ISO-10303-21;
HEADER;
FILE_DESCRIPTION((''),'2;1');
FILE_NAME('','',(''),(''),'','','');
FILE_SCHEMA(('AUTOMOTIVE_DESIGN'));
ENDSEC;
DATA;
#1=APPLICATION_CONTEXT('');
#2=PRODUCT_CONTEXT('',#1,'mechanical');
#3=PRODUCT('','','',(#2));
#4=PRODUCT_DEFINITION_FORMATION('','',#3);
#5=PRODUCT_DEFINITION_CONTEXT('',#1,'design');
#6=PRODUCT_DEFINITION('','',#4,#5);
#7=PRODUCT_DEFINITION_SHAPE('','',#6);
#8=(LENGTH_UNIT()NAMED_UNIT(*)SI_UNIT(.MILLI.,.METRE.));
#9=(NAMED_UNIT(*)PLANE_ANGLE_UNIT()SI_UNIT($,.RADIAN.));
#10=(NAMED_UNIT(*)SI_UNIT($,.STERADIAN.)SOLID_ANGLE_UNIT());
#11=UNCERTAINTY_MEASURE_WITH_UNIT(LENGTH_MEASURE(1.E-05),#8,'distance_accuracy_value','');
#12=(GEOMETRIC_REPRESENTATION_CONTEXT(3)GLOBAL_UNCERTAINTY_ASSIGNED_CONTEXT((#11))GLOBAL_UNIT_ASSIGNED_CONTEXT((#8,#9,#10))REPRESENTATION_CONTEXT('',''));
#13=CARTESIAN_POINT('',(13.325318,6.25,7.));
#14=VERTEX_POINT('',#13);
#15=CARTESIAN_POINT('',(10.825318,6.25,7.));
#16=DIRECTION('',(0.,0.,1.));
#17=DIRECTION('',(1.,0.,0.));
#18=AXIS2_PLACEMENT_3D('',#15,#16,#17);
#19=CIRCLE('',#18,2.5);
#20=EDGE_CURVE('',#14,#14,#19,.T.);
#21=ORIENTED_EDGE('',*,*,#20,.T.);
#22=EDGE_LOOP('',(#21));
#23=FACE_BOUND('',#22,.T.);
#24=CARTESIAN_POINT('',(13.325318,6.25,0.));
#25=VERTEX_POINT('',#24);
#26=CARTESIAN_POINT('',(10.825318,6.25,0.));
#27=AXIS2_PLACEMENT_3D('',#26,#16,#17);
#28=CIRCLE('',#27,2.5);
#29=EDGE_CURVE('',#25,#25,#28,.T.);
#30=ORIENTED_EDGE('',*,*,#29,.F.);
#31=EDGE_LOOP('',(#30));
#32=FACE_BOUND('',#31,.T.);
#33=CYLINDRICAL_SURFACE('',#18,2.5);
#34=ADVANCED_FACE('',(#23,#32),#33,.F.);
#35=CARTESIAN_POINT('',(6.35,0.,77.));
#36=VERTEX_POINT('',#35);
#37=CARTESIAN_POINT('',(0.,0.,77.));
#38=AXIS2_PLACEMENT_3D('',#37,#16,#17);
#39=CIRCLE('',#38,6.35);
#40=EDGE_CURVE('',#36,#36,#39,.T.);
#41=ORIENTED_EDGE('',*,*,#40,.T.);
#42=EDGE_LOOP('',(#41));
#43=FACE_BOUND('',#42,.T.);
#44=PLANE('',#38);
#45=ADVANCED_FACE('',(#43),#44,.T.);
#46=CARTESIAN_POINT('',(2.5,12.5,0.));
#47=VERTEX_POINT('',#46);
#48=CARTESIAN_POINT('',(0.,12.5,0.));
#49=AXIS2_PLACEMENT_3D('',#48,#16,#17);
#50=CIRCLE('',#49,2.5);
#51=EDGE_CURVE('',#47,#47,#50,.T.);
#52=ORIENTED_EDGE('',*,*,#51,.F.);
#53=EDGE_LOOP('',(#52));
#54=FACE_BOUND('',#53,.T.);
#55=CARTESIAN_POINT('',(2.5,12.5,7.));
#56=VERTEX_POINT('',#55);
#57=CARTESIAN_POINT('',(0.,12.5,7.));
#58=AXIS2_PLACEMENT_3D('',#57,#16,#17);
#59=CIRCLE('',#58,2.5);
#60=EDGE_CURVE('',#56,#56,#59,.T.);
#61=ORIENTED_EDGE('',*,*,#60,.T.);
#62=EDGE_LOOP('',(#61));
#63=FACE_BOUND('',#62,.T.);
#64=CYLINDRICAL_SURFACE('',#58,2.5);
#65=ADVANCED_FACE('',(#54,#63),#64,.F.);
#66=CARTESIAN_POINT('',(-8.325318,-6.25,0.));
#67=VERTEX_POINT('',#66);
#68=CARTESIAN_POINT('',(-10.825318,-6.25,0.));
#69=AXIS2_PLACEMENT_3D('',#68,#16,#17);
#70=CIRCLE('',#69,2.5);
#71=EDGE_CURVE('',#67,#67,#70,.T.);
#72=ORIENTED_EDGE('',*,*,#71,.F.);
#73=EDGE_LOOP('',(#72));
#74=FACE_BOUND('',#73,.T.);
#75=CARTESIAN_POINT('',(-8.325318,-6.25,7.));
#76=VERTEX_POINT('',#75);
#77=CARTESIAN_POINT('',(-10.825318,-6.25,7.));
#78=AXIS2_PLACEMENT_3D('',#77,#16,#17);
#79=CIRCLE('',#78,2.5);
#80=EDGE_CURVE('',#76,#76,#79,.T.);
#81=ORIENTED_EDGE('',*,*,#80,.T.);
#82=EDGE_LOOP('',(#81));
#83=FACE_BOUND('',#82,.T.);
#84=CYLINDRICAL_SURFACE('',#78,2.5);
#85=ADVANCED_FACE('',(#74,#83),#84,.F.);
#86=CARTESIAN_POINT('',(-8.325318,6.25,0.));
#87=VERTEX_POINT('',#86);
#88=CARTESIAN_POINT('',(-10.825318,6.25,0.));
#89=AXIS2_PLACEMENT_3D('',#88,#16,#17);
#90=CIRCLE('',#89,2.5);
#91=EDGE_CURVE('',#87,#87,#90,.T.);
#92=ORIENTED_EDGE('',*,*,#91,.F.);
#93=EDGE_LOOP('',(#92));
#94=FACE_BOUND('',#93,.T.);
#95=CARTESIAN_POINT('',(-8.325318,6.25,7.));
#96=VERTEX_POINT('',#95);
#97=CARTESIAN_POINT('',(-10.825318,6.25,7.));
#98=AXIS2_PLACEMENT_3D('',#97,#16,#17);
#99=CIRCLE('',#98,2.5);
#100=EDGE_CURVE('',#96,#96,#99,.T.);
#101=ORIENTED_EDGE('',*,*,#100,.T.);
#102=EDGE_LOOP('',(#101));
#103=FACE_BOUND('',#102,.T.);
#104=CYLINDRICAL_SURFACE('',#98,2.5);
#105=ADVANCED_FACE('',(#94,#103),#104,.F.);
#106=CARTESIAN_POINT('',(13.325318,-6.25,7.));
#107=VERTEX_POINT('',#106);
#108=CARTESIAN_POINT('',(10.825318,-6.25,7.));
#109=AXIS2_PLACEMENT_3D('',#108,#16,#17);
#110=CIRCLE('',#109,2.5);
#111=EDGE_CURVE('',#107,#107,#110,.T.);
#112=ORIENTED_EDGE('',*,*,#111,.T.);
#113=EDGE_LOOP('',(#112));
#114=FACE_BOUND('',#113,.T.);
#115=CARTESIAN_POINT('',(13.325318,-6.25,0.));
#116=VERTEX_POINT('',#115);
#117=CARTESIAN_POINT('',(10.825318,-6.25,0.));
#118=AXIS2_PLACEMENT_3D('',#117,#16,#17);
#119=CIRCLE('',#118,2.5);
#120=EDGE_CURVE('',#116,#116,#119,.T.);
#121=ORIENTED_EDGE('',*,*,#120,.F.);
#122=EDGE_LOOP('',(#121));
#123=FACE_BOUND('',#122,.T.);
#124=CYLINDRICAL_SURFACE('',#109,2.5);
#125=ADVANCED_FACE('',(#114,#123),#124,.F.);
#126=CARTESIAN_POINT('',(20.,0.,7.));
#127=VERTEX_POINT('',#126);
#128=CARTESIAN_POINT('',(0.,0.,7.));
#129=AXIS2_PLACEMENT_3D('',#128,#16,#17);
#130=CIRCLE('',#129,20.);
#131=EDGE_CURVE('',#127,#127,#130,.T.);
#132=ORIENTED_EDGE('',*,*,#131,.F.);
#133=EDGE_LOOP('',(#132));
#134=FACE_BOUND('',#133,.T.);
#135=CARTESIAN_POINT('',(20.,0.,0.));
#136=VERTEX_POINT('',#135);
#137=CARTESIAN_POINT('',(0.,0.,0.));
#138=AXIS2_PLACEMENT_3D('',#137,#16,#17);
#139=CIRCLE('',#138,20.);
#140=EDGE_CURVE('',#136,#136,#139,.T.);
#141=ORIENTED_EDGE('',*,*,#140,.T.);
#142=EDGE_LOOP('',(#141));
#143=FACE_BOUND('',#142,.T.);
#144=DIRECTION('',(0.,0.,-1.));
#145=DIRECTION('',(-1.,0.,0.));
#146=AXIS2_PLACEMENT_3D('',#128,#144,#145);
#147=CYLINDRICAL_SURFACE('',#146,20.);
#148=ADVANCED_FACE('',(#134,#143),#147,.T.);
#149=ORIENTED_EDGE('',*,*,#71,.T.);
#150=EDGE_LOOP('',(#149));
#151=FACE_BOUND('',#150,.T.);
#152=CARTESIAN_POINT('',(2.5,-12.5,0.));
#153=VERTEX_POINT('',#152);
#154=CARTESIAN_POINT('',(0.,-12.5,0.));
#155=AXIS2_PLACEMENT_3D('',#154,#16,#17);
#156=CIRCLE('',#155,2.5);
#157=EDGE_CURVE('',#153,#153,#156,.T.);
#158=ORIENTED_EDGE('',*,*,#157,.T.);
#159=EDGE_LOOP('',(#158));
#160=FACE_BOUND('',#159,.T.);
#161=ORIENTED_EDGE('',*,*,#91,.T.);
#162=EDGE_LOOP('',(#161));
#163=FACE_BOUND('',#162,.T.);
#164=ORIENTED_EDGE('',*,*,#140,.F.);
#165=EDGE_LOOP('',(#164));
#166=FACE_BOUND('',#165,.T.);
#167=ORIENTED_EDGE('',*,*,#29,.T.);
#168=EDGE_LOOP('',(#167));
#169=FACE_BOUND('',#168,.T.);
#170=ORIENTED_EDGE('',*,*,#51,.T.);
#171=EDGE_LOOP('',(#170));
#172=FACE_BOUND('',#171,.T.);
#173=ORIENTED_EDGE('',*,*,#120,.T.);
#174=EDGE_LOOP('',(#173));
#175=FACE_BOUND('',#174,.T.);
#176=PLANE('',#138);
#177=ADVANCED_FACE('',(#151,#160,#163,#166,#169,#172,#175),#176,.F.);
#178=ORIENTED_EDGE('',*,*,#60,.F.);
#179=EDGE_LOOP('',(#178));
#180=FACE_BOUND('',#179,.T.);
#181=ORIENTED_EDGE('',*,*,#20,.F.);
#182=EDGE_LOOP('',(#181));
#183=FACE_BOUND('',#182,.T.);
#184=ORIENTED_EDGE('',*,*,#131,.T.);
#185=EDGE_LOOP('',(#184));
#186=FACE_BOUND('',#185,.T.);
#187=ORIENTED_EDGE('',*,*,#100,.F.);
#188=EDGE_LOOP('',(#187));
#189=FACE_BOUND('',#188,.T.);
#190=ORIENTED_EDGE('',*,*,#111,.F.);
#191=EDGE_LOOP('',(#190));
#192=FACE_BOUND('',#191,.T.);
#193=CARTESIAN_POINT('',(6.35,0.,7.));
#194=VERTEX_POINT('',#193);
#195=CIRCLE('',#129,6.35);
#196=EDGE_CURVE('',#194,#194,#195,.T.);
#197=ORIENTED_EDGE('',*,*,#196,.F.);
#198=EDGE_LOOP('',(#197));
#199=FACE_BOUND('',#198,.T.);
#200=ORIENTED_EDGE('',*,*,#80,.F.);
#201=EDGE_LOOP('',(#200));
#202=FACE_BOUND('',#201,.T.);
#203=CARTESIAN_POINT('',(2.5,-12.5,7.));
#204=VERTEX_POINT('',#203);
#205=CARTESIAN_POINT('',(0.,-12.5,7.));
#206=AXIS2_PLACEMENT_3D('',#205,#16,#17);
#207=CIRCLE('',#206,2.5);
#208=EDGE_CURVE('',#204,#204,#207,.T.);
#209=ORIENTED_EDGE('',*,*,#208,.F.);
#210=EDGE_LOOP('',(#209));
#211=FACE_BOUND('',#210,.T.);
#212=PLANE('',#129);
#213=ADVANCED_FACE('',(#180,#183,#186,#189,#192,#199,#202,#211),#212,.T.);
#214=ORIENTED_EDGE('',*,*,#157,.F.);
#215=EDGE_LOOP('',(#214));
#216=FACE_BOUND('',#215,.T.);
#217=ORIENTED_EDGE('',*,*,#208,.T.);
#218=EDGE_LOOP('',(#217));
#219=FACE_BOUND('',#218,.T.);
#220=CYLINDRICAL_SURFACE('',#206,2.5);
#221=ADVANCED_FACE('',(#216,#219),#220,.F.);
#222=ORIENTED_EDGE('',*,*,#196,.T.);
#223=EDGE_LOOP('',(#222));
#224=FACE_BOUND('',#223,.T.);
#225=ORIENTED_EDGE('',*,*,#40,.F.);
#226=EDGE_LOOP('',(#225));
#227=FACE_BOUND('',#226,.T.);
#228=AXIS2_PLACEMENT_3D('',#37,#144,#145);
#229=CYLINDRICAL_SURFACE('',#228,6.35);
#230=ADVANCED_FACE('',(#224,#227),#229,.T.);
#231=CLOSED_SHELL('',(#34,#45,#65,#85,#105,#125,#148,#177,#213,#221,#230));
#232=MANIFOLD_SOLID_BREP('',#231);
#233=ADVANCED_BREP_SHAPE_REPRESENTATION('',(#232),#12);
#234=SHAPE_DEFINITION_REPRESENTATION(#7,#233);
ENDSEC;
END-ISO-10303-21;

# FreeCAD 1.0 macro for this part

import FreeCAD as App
import Part
import Sketcher

doc = App.newDocument("Part")
body = doc.addObject("PartDesign::Body", "Body")

# Sketch on XY plane
sketch1 = body.newObject("Sketcher::SketchObject", "Sketch")
sketch1.AttachmentSupport = (doc.getObject("XY_Plane"), [""])
sketch1.MapMode = "FlatFace"
sketch1.addGeometry(Part.Circle(App.Vector(0, 0, 0), App.Vector(0, 0, 1), 20), False)
sketch1.addConstraint(Sketcher.Constraint("Coincident", 0, 3, -1, 1))
sketch1.addConstraint(Sketcher.Constraint("Diameter", 0, 40.0))
pad1 = body.newObject("PartDesign::Pad", "Pad")
pad1.Profile = sketch1
pad1.Length = 7

# Sketch on XY plane
sketch2 = body.newObject("Sketcher::SketchObject", "Sketch001")
sketch2.AttachmentSupport = (doc.getObject("XY_Plane"), [""])
sketch2.MapMode = "FlatFace"
sketch2.AttachmentOffset = App.Placement(App.Vector(0, 0, 7), App.Rotation())
sketch2.addGeometry(Part.Circle(App.Vector(0, 12.5, 0), App.Vector(0, 0, 1), 2.5), False)
sketch2.addConstraint(Sketcher.Constraint("PointOnObject", 0, 3, -2))
sketch2.addConstraint(Sketcher.Constraint("Diameter", 0, 5.0))
sketch2.addConstraint(Sketcher.Constraint("DistanceY", -1, 1, 0, 3, 12.5))
doc.recompute()
hole = body.newObject("PartDesign::Hole", "Hole")
hole.Profile = sketch2
hole.ThreadType = "None"
hole.Diameter = 5
hole.DepthType = "ThroughAll"
doc.recompute()

polarpattern = body.newObject("PartDesign::PolarPattern", "PolarPattern")
polarpattern.Originals = [hole]
polarpattern.Axis = (doc.getObject("Z_Axis"), [""])
polarpattern.Angle = 360
polarpattern.Occurrences = 6
body.Tip = polarpattern

# Sketch on XY plane
sketch3 = body.newObject("Sketcher::SketchObject", "Sketch002")
sketch3.AttachmentSupport = (doc.getObject("XY_Plane"), [""])
sketch3.MapMode = "FlatFace"
sketch3.AttachmentOffset = App.Placement(App.Vector(0, 0, 7), App.Rotation())
sketch3.addGeometry(Part.Circle(App.Vector(0, 0, 0), App.Vector(0, 0, 1), 6.35), False)
sketch3.addConstraint(Sketcher.Constraint("Coincident", 0, 3, -1, 1))
sketch3.addConstraint(Sketcher.Constraint("Diameter", 0, 12.7))
pad2 = body.newObject("PartDesign::Pad", "Pad001")
pad2.Profile = sketch3
pad2.Length = 70

doc.recompute()
